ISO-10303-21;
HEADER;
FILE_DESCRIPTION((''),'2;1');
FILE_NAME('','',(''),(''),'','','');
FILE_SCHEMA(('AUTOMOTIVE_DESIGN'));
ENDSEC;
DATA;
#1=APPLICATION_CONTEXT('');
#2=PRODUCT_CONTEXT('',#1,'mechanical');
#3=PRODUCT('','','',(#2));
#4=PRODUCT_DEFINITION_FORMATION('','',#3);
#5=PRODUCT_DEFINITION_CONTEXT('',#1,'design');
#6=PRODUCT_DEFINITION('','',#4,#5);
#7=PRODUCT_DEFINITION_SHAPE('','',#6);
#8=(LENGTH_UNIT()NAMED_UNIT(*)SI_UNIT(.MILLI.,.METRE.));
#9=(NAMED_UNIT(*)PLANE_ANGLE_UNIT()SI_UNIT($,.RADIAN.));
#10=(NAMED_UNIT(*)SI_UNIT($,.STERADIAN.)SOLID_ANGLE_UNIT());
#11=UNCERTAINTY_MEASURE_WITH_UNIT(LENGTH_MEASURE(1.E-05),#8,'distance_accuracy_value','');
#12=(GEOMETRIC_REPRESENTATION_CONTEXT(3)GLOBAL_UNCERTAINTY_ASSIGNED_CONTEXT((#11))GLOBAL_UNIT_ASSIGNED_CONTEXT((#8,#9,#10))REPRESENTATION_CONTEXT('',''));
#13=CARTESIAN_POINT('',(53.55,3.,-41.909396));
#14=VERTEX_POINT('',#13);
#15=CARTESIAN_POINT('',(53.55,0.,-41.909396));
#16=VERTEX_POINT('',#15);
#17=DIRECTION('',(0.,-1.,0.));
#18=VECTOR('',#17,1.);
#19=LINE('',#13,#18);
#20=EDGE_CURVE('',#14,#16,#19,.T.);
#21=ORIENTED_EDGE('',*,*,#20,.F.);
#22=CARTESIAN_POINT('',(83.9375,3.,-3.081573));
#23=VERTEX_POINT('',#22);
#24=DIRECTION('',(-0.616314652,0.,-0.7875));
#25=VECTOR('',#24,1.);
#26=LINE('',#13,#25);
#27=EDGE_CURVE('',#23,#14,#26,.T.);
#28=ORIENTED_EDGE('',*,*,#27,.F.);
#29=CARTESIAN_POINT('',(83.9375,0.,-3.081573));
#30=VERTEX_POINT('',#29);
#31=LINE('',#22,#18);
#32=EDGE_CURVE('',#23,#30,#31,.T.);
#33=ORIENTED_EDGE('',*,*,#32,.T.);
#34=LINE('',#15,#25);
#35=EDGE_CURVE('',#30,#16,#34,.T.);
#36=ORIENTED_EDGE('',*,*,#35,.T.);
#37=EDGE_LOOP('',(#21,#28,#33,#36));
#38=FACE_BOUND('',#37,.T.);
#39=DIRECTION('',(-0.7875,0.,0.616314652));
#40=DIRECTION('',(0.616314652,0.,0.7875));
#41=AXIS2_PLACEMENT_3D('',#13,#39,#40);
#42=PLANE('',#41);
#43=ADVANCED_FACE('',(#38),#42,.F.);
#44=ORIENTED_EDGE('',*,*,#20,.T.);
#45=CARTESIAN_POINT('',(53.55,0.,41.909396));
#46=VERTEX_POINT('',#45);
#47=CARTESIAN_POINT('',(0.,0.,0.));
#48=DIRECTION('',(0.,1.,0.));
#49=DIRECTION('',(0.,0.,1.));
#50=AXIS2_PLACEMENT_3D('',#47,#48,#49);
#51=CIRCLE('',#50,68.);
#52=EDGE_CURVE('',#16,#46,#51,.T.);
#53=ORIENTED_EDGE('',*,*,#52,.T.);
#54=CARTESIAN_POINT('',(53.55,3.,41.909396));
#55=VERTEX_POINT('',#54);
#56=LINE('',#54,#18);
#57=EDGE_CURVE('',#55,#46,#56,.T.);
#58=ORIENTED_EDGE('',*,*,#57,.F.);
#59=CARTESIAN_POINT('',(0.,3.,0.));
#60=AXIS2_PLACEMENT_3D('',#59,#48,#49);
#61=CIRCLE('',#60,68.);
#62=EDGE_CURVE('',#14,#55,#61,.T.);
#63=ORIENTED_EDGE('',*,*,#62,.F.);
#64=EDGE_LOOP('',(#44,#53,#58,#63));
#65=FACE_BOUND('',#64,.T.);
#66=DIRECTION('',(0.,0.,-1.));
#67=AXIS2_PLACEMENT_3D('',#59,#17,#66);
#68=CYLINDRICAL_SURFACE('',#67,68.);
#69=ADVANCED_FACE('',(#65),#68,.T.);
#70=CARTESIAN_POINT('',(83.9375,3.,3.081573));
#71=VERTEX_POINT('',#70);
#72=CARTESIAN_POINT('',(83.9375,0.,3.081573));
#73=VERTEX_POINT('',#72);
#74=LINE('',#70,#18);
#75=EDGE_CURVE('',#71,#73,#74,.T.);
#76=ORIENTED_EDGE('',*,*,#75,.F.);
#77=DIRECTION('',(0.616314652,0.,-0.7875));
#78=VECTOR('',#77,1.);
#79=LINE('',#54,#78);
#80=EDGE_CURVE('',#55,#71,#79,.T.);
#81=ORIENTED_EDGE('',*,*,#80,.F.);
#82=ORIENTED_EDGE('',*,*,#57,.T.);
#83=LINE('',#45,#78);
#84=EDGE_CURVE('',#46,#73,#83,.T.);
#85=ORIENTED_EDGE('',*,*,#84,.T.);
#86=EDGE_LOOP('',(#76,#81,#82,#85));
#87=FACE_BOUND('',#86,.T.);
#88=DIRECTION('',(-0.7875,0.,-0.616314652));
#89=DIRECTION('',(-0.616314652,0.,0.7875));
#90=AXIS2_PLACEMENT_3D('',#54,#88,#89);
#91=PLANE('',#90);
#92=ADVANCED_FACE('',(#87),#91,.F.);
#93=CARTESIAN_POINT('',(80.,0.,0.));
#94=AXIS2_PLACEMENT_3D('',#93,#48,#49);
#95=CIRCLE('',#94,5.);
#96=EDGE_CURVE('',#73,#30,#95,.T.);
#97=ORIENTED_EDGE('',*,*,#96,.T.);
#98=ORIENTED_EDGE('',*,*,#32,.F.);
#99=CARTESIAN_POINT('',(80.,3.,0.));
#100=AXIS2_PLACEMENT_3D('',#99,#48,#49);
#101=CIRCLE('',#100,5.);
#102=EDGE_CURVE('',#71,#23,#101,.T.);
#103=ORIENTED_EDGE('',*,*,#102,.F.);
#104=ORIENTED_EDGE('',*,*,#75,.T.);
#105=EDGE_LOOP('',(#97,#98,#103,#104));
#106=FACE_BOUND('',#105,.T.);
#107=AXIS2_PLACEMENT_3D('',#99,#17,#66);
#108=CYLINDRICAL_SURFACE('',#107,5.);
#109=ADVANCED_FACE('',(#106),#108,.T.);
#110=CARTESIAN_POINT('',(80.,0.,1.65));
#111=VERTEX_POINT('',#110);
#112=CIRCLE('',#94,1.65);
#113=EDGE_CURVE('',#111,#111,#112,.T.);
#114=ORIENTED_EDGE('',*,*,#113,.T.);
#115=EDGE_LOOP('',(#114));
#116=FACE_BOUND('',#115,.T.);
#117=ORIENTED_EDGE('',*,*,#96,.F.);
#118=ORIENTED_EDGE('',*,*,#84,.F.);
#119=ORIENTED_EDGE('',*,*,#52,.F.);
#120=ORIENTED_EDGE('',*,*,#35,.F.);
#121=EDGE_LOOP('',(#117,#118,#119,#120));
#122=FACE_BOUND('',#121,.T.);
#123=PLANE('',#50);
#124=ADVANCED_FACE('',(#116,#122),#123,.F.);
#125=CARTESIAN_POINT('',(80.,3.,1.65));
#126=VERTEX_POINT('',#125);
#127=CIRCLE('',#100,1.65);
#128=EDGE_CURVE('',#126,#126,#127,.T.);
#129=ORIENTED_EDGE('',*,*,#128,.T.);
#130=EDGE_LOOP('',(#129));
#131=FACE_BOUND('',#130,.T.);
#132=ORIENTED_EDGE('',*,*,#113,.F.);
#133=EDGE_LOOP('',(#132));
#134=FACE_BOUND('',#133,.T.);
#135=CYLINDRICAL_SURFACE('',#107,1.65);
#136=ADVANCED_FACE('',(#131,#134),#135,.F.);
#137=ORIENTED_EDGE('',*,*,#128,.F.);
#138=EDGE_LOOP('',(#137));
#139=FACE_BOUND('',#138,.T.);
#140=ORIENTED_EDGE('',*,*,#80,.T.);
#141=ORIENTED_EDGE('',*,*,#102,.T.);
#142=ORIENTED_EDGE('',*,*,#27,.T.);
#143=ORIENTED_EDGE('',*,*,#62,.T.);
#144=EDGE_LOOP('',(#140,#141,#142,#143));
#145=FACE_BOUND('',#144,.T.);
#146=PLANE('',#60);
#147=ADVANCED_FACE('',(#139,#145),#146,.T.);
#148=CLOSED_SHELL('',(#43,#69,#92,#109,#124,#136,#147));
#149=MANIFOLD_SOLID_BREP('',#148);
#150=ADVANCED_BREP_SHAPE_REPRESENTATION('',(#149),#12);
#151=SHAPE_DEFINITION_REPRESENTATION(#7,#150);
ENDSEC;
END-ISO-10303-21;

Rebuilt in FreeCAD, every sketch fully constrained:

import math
import FreeCAD as App
import Part
import Sketcher

V = App.Vector

doc = App.newDocument("Part")
body = doc.addObject("PartDesign::Body", "Body")

sketch1 = body.newObject("Sketcher::SketchObject", "Sketch")
sketch1.AttachmentSupport = (doc.getObject("XZ_Plane"), [""])
sketch1.MapMode = "FlatFace"
sketch1.addGeometry([
    Part.LineSegment(V(53.5, 41.9, 0), V(83.9, 3.1, 0)),
    Part.ArcOfCircle(Part.Circle(V(80, 0, 0), V(0, 0, 1), 5), math.radians(-38), math.radians(38)),
    Part.LineSegment(V(83.9, -3.1, 0), V(53.5, -41.9, 0)),
    Part.ArcOfCircle(Part.Circle(V(0, 0, 0), V(0, 0, 1), 68), math.radians(38), math.radians(322)),
    Part.Circle(V(80, 0, 0), V(0, 0, 1), 1.6),
], False)
sketch1.addConstraint([
    Sketcher.Constraint("Tangent", 0, 2, 1, 2),
    Sketcher.Constraint("Tangent", 1, 1, 2, 1),
    Sketcher.Constraint("Tangent", 2, 2, 3, 2),
    Sketcher.Constraint("Tangent", 3, 1, 0, 1),
    Sketcher.Constraint("Coincident", 3, 3, -1, 1),
    Sketcher.Constraint("Coincident", 4, 3, 1, 3),
    Sketcher.Constraint("PointOnObject", 1, 3, -1),
    Sketcher.Constraint("Radius", 1, 5.0),
    Sketcher.Constraint("Radius", 3, 68.0),
    Sketcher.Constraint("Diameter", 4, 3.3),
    Sketcher.Constraint("DistanceX", -1, 1, 1, 3, 80.0),
])
pad1 = body.newObject("PartDesign::Pad", "Pad")
pad1.Profile = sketch1
pad1.Length = 3
pad1.Reversed = True

doc.recompute()
